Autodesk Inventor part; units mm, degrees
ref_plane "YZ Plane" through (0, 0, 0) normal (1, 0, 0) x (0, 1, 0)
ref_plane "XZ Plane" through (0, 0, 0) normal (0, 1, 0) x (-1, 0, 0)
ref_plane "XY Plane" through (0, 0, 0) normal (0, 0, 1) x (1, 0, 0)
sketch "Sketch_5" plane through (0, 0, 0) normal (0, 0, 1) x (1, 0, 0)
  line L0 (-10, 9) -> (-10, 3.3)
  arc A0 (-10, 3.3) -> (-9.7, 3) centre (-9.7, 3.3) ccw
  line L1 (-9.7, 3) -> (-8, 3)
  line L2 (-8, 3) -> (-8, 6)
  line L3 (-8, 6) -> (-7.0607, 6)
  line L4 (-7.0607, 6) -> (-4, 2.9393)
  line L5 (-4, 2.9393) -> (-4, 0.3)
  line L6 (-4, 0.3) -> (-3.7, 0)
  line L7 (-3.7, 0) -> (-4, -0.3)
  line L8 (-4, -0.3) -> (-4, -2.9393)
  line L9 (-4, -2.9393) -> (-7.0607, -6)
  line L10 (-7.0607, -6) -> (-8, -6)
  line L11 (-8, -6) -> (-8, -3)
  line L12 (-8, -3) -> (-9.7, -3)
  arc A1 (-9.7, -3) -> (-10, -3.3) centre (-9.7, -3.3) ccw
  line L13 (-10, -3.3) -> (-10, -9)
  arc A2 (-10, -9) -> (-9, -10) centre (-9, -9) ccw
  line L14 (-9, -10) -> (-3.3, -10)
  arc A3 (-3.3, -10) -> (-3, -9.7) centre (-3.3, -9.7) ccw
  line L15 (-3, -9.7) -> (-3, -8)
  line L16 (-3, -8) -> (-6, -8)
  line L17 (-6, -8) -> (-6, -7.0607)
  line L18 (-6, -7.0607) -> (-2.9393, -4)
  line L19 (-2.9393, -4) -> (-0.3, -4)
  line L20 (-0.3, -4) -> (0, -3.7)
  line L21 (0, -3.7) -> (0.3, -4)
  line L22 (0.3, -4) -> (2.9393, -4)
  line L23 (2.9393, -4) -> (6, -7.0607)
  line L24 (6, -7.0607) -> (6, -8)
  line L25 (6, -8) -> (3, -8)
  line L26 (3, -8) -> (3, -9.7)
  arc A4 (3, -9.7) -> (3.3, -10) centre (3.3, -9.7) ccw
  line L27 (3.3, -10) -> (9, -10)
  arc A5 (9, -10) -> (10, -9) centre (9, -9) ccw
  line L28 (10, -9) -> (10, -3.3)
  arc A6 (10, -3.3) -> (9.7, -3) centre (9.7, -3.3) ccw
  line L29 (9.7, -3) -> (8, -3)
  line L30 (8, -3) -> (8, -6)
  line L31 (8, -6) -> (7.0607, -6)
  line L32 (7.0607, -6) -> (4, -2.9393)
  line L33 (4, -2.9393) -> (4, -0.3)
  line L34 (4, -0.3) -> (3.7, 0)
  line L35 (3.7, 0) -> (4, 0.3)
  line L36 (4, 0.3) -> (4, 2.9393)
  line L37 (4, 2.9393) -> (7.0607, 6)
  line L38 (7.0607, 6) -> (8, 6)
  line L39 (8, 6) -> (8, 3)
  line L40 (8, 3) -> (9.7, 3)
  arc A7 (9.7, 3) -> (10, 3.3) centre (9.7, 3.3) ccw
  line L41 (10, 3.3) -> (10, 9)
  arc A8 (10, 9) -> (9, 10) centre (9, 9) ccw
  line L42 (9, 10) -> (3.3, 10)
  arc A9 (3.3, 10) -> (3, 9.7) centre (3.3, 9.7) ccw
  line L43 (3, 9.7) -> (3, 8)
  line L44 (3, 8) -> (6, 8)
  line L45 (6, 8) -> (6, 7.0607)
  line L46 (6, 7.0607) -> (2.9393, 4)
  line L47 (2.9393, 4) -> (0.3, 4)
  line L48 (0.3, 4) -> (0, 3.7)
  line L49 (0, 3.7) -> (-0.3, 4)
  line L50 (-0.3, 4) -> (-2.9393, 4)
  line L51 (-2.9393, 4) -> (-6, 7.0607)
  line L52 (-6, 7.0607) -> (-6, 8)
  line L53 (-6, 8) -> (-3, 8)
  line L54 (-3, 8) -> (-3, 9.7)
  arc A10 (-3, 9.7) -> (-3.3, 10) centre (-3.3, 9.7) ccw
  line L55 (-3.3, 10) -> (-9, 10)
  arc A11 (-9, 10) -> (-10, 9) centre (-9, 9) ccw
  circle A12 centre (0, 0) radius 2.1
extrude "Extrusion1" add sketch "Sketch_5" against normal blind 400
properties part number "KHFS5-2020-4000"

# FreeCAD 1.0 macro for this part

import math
import FreeCAD as App
import Part
import Sketcher
Q = App.Units.Quantity

doc = App.newDocument("Part")
body = doc.addObject("PartDesign::Body", "Body")

# Sketch on XY plane
sketch1 = doc.addObject("Sketcher::SketchObject", "Sketch")
body.addObject(sketch1)
sketch1.AttachmentSupport = (doc.XY_Plane, [""])
sketch1.MapMode = "FlatFace"
sketch1.addGeometry(Part.ArcOfCircle(Part.Circle(App.Vector(-9, 9, 0), App.Vector(0, 0, 1), 1), math.radians(90), math.radians(180)), False)
sketch1.addGeometry(Part.LineSegment(App.Vector(-10, 9, 0), App.Vector(-10, 3.3, 0)), False)
sketch1.addGeometry(Part.ArcOfCircle(Part.Circle(App.Vector(-9.7, 3.3, 0), App.Vector(0, 0, 1), 0.3), math.radians(180), math.radians(270)), False)
sketch1.addGeometry(Part.LineSegment(App.Vector(-9.7, 3, 0), App.Vector(-8, 3, 0)), False)
sketch1.addGeometry(Part.LineSegment(App.Vector(-8, 3, 0), App.Vector(-8, 6, 0)), False)
sketch1.addGeometry(Part.LineSegment(App.Vector(-8, 6, 0), App.Vector(-7.0607, 6, 0)), False)
sketch1.addGeometry(Part.LineSegment(App.Vector(-7.0607, 6, 0), App.Vector(-4, 2.9393, 0)), False)
sketch1.addGeometry(Part.LineSegment(App.Vector(-4, 2.9393, 0), App.Vector(-4, 0.3, 0)), False)
sketch1.addGeometry(Part.LineSegment(App.Vector(-4, 0.3, 0), App.Vector(-3.7, 0, 0)), False)
sketch1.addGeometry(Part.LineSegment(App.Vector(-3.7, 0, 0), App.Vector(-4, -0.3, 0)), False)
sketch1.addGeometry(Part.LineSegment(App.Vector(-4, -0.3, 0), App.Vector(-4, -2.9393, 0)), False)
sketch1.addGeometry(Part.LineSegment(App.Vector(-4, -2.9393, 0), App.Vector(-7.0607, -6, 0)), False)
sketch1.addGeometry(Part.LineSegment(App.Vector(-7.0607, -6, 0), App.Vector(-8, -6, 0)), False)
sketch1.addGeometry(Part.LineSegment(App.Vector(-8, -6, 0), App.Vector(-8, -3, 0)), False)
sketch1.addGeometry(Part.LineSegment(App.Vector(-8, -3, 0), App.Vector(-9.7, -3, 0)), False)
sketch1.addGeometry(Part.ArcOfCircle(Part.Circle(App.Vector(-9.7, -3.3, 0), App.Vector(0, 0, 1), 0.3), math.radians(90), math.radians(180)), False)
sketch1.addGeometry(Part.LineSegment(App.Vector(-10, -3.3, 0), App.Vector(-10, -9, 0)), False)
sketch1.addGeometry(Part.ArcOfCircle(Part.Circle(App.Vector(-9, -9, 0), App.Vector(0, 0, 1), 1), math.radians(180), math.radians(270)), False)
sketch1.addGeometry(Part.LineSegment(App.Vector(-9, -10, 0), App.Vector(-3.3, -10, 0)), False)
sketch1.addGeometry(Part.ArcOfCircle(Part.Circle(App.Vector(-3.3, -9.7, 0), App.Vector(0, 0, 1), 0.3), math.radians(-90), math.radians(0)), False)
sketch1.addGeometry(Part.LineSegment(App.Vector(-3, -9.7, 0), App.Vector(-3, -8, 0)), False)
sketch1.addGeometry(Part.LineSegment(App.Vector(-3, -8, 0), App.Vector(-6, -8, 0)), False)
sketch1.addGeometry(Part.LineSegment(App.Vector(-6, -8, 0), App.Vector(-6, -7.0607, 0)), False)
sketch1.addGeometry(Part.LineSegment(App.Vector(-6, -7.0607, 0), App.Vector(-2.9393, -4, 0)), False)
sketch1.addGeometry(Part.LineSegment(App.Vector(-2.9393, -4, 0), App.Vector(-0.3, -4, 0)), False)
sketch1.addGeometry(Part.LineSegment(App.Vector(-0.3, -4, 0), App.Vector(0, -3.7, 0)), False)
sketch1.addGeometry(Part.LineSegment(App.Vector(0, -3.7, 0), App.Vector(0.3, -4, 0)), False)
sketch1.addGeometry(Part.LineSegment(App.Vector(0.3, -4, 0), App.Vector(2.9393, -4, 0)), False)
sketch1.addGeometry(Part.LineSegment(App.Vector(2.9393, -4, 0), App.Vector(6, -7.0607, 0)), False)
sketch1.addGeometry(Part.LineSegment(App.Vector(6, -7.0607, 0), App.Vector(6, -8, 0)), False)
sketch1.addGeometry(Part.LineSegment(App.Vector(6, -8, 0), App.Vector(3, -8, 0)), False)
sketch1.addGeometry(Part.LineSegment(App.Vector(3, -8, 0), App.Vector(3, -9.7, 0)), False)
sketch1.addGeometry(Part.ArcOfCircle(Part.Circle(App.Vector(3.3, -9.7, 0), App.Vector(0, 0, 1), 0.3), math.radians(180), math.radians(270)), False)
sketch1.addGeometry(Part.LineSegment(App.Vector(3.3, -10, 0), App.Vector(9, -10, 0)), False)
sketch1.addGeometry(Part.ArcOfCircle(Part.Circle(App.Vector(9, -9, 0), App.Vector(0, 0, 1), 1), math.radians(-90), math.radians(0)), False)
sketch1.addGeometry(Part.LineSegment(App.Vector(10, -9, 0), App.Vector(10, -3.3, 0)), False)
sketch1.addGeometry(Part.ArcOfCircle(Part.Circle(App.Vector(9.7, -3.3, 0), App.Vector(0, 0, 1), 0.3), math.radians(0), math.radians(90)), False)
sketch1.addGeometry(Part.LineSegment(App.Vector(9.7, -3, 0), App.Vector(8, -3, 0)), False)
sketch1.addGeometry(Part.LineSegment(App.Vector(8, -3, 0), App.Vector(8, -6, 0)), False)
sketch1.addGeometry(Part.LineSegment(App.Vector(8, -6, 0), App.Vector(7.0607, -6, 0)), False)
sketch1.addGeometry(Part.LineSegment(App.Vector(7.0607, -6, 0), App.Vector(4, -2.9393, 0)), False)
sketch1.addGeometry(Part.LineSegment(App.Vector(4, -2.9393, 0), App.Vector(4, -0.3, 0)), False)
sketch1.addGeometry(Part.LineSegment(App.Vector(4, -0.3, 0), App.Vector(3.7, 0, 0)), False)
sketch1.addGeometry(Part.LineSegment(App.Vector(3.7, 0, 0), App.Vector(4, 0.3, 0)), False)
sketch1.addGeometry(Part.LineSegment(App.Vector(4, 0.3, 0), App.Vector(4, 2.9393, 0)), False)
sketch1.addGeometry(Part.LineSegment(App.Vector(4, 2.9393, 0), App.Vector(7.0607, 6, 0)), False)
sketch1.addGeometry(Part.LineSegment(App.Vector(7.0607, 6, 0), App.Vector(8, 6, 0)), False)
sketch1.addGeometry(Part.LineSegment(App.Vector(8, 6, 0), App.Vector(8, 3, 0)), False)
sketch1.addGeometry(Part.LineSegment(App.Vector(8, 3, 0), App.Vector(9.7, 3, 0)), False)
sketch1.addGeometry(Part.ArcOfCircle(Part.Circle(App.Vector(9.7, 3.3, 0), App.Vector(0, 0, 1), 0.3), math.radians(-90), math.radians(0)), False)
sketch1.addGeometry(Part.LineSegment(App.Vector(10, 3.3, 0), App.Vector(10, 9, 0)), False)
sketch1.addGeometry(Part.ArcOfCircle(Part.Circle(App.Vector(9, 9, 0), App.Vector(0, 0, 1), 1), math.radians(0), math.radians(90)), False)
sketch1.addGeometry(Part.LineSegment(App.Vector(9, 10, 0), App.Vector(3.3, 10, 0)), False)
sketch1.addGeometry(Part.ArcOfCircle(Part.Circle(App.Vector(3.3, 9.7, 0), App.Vector(0, 0, 1), 0.3), math.radians(90), math.radians(180)), False)
sketch1.addGeometry(Part.LineSegment(App.Vector(3, 9.7, 0), App.Vector(3, 8, 0)), False)
sketch1.addGeometry(Part.LineSegment(App.Vector(3, 8, 0), App.Vector(6, 8, 0)), False)
sketch1.addGeometry(Part.LineSegment(App.Vector(6, 8, 0), App.Vector(6, 7.0607, 0)), False)
sketch1.addGeometry(Part.LineSegment(App.Vector(6, 7.0607, 0), App.Vector(2.9393, 4, 0)), False)
sketch1.addGeometry(Part.LineSegment(App.Vector(2.9393, 4, 0), App.Vector(0.3, 4, 0)), False)
sketch1.addGeometry(Part.LineSegment(App.Vector(0.3, 4, 0), App.Vector(0, 3.7, 0)), False)
sketch1.addGeometry(Part.LineSegment(App.Vector(0, 3.7, 0), App.Vector(-0.3, 4, 0)), False)
sketch1.addGeometry(Part.LineSegment(App.Vector(-0.3, 4, 0), App.Vector(-2.9393, 4, 0)), False)
sketch1.addGeometry(Part.LineSegment(App.Vector(-2.9393, 4, 0), App.Vector(-6, 7.0607, 0)), False)
sketch1.addGeometry(Part.LineSegment(App.Vector(-6, 7.0607, 0), App.Vector(-6, 8, 0)), False)
sketch1.addGeometry(Part.LineSegment(App.Vector(-6, 8, 0), App.Vector(-3, 8, 0)), False)
sketch1.addGeometry(Part.LineSegment(App.Vector(-3, 8, 0), App.Vector(-3, 9.7, 0)), False)
sketch1.addGeometry(Part.ArcOfCircle(Part.Circle(App.Vector(-3.3, 9.7, 0), App.Vector(0, 0, 1), 0.3), math.radians(0), math.radians(90)), False)
sketch1.addGeometry(Part.LineSegment(App.Vector(-3.3, 10, 0), App.Vector(-9, 10, 0)), False)
sketch1.addGeometry(Part.Circle(App.Vector(0, 0, 0), App.Vector(0, 0, 1), 2.1), False)
sketch1.addConstraint(Sketcher.Constraint("Tangent", 0, 2, 1, 1))
sketch1.addConstraint(Sketcher.Constraint("Tangent", 1, 2, 2, 1))
sketch1.addConstraint(Sketcher.Constraint("Tangent", 2, 2, 3, 1))
sketch1.addConstraint(Sketcher.Constraint("Coincident", 3, 2, 4, 1))
sketch1.addConstraint(Sketcher.Constraint("Coincident", 4, 2, 5, 1))
sketch1.addConstraint(Sketcher.Constraint("Coincident", 5, 2, 6, 1))
sketch1.addConstraint(Sketcher.Constraint("Coincident", 6, 2, 7, 1))
sketch1.addConstraint(Sketcher.Constraint("Coincident", 7, 2, 8, 1))
sketch1.addConstraint(Sketcher.Constraint("Coincident", 8, 2, 9, 1))
sketch1.addConstraint(Sketcher.Constraint("Coincident", 9, 2, 10, 1))
sketch1.addConstraint(Sketcher.Constraint("Coincident", 10, 2, 11, 1))
sketch1.addConstraint(Sketcher.Constraint("Coincident", 11, 2, 12, 1))
sketch1.addConstraint(Sketcher.Constraint("Coincident", 12, 2, 13, 1))
sketch1.addConstraint(Sketcher.Constraint("Coincident", 13, 2, 14, 1))
sketch1.addConstraint(Sketcher.Constraint("Tangent", 14, 2, 15, 1))
sketch1.addConstraint(Sketcher.Constraint("Tangent", 15, 2, 16, 1))
sketch1.addConstraint(Sketcher.Constraint("Tangent", 16, 2, 17, 1))
sketch1.addConstraint(Sketcher.Constraint("Tangent", 17, 2, 18, 1))
sketch1.addConstraint(Sketcher.Constraint("Tangent", 18, 2, 19, 1))
sketch1.addConstraint(Sketcher.Constraint("Tangent", 19, 2, 20, 1))
sketch1.addConstraint(Sketcher.Constraint("Coincident", 20, 2, 21, 1))
sketch1.addConstraint(Sketcher.Constraint("Coincident", 21, 2, 22, 1))
sketch1.addConstraint(Sketcher.Constraint("Coincident", 22, 2, 23, 1))
sketch1.addConstraint(Sketcher.Constraint("Coincident", 23, 2, 24, 1))
sketch1.addConstraint(Sketcher.Constraint("Coincident", 24, 2, 25, 1))
sketch1.addConstraint(Sketcher.Constraint("Coincident", 25, 2, 26, 1))
sketch1.addConstraint(Sketcher.Constraint("Coincident", 26, 2, 27, 1))
sketch1.addConstraint(Sketcher.Constraint("Coincident", 27, 2, 28, 1))
sketch1.addConstraint(Sketcher.Constraint("Coincident", 28, 2, 29, 1))
sketch1.addConstraint(Sketcher.Constraint("Coincident", 29, 2, 30, 1))
sketch1.addConstraint(Sketcher.Constraint("Coincident", 30, 2, 31, 1))
sketch1.addConstraint(Sketcher.Constraint("Tangent", 31, 2, 32, 1))
sketch1.addConstraint(Sketcher.Constraint("Tangent", 32, 2, 33, 1))
sketch1.addConstraint(Sketcher.Constraint("Tangent", 33, 2, 34, 1))
sketch1.addConstraint(Sketcher.Constraint("Tangent", 34, 2, 35, 1))
sketch1.addConstraint(Sketcher.Constraint("Tangent", 35, 2, 36, 1))
sketch1.addConstraint(Sketcher.Constraint("Tangent", 36, 2, 37, 1))
sketch1.addConstraint(Sketcher.Constraint("Coincident", 37, 2, 38, 1))
sketch1.addConstraint(Sketcher.Constraint("Coincident", 38, 2, 39, 1))
sketch1.addConstraint(Sketcher.Constraint("Coincident", 39, 2, 40, 1))
sketch1.addConstraint(Sketcher.Constraint("Coincident", 40, 2, 41, 1))
sketch1.addConstraint(Sketcher.Constraint("Coincident", 41, 2, 42, 1))
sketch1.addConstraint(Sketcher.Constraint("Coincident", 42, 2, 43, 1))
sketch1.addConstraint(Sketcher.Constraint("Coincident", 43, 2, 44, 1))
sketch1.addConstraint(Sketcher.Constraint("Coincident", 44, 2, 45, 1))
sketch1.addConstraint(Sketcher.Constraint("Coincident", 45, 2, 46, 1))
sketch1.addConstraint(Sketcher.Constraint("Coincident", 46, 2, 47, 1))
sketch1.addConstraint(Sketcher.Constraint("Coincident", 47, 2, 48, 1))
sketch1.addConstraint(Sketcher.Constraint("Tangent", 48, 2, 49, 1))
sketch1.addConstraint(Sketcher.Constraint("Tangent", 49, 2, 50, 1))
sketch1.addConstraint(Sketcher.Constraint("Tangent", 50, 2, 51, 1))
sketch1.addConstraint(Sketcher.Constraint("Tangent", 51, 2, 52, 1))
sketch1.addConstraint(Sketcher.Constraint("Tangent", 52, 2, 53, 1))
sketch1.addConstraint(Sketcher.Constraint("Tangent", 53, 2, 54, 1))
sketch1.addConstraint(Sketcher.Constraint("Coincident", 54, 2, 55, 1))
sketch1.addConstraint(Sketcher.Constraint("Coincident", 55, 2, 56, 1))
sketch1.addConstraint(Sketcher.Constraint("Coincident", 56, 2, 57, 1))
sketch1.addConstraint(Sketcher.Constraint("Coincident", 57, 2, 58, 1))
sketch1.addConstraint(Sketcher.Constraint("Coincident", 58, 2, 59, 1))
sketch1.addConstraint(Sketcher.Constraint("Coincident", 59, 2, 60, 1))
sketch1.addConstraint(Sketcher.Constraint("Coincident", 60, 2, 61, 1))
sketch1.addConstraint(Sketcher.Constraint("Coincident", 61, 2, 62, 1))
sketch1.addConstraint(Sketcher.Constraint("Coincident", 62, 2, 63, 1))
sketch1.addConstraint(Sketcher.Constraint("Coincident", 63, 2, 64, 1))
sketch1.addConstraint(Sketcher.Constraint("Coincident", 64, 2, 65, 1))
sketch1.addConstraint(Sketcher.Constraint("Tangent", 65, 2, 66, 1))
sketch1.addConstraint(Sketcher.Constraint("Tangent", 66, 2, 67, 1))
sketch1.addConstraint(Sketcher.Constraint("Tangent", 67, 2, 0, 1))
sketch1.addConstraint(Sketcher.Constraint("Vertical", 1))
sketch1.addConstraint(Sketcher.Constraint("Horizontal", 3))
sketch1.addConstraint(Sketcher.Constraint("Vertical", 4))
sketch1.addConstraint(Sketcher.Constraint("Horizontal", 5))
sketch1.addConstraint(Sketcher.Constraint("Vertical", 7))
sketch1.addConstraint(Sketcher.Constraint("Vertical", 10))
sketch1.addConstraint(Sketcher.Constraint("Horizontal", 12))
sketch1.addConstraint(Sketcher.Constraint("Vertical", 13))
sketch1.addConstraint(Sketcher.Constraint("Horizontal", 14))
sketch1.addConstraint(Sketcher.Constraint("Vertical", 16))
sketch1.addConstraint(Sketcher.Constraint("Horizontal", 18))
sketch1.addConstraint(Sketcher.Constraint("Vertical", 20))
sketch1.addConstraint(Sketcher.Constraint("Horizontal", 21))
sketch1.addConstraint(Sketcher.Constraint("Vertical", 22))
sketch1.addConstraint(Sketcher.Constraint("Horizontal", 24))
sketch1.addConstraint(Sketcher.Constraint("Horizontal", 27))
sketch1.addConstraint(Sketcher.Constraint("Vertical", 29))
sketch1.addConstraint(Sketcher.Constraint("Horizontal", 30))
sketch1.addConstraint(Sketcher.Constraint("Vertical", 31))
sketch1.addConstraint(Sketcher.Constraint("Horizontal", 33))
sketch1.addConstraint(Sketcher.Constraint("Vertical", 35))
sketch1.addConstraint(Sketcher.Constraint("Horizontal", 37))
sketch1.addConstraint(Sketcher.Constraint("Vertical", 38))
sketch1.addConstraint(Sketcher.Constraint("Horizontal", 39))
sketch1.addConstraint(Sketcher.Constraint("Vertical", 41))
sketch1.addConstraint(Sketcher.Constraint("Vertical", 44))
sketch1.addConstraint(Sketcher.Constraint("Horizontal", 46))
sketch1.addConstraint(Sketcher.Constraint("Vertical", 47))
sketch1.addConstraint(Sketcher.Constraint("Horizontal", 48))
sketch1.addConstraint(Sketcher.Constraint("Vertical", 50))
sketch1.addConstraint(Sketcher.Constraint("Horizontal", 52))
sketch1.addConstraint(Sketcher.Constraint("Vertical", 54))
sketch1.addConstraint(Sketcher.Constraint("Horizontal", 55))
sketch1.addConstraint(Sketcher.Constraint("Vertical", 56))
sketch1.addConstraint(Sketcher.Constraint("Horizontal", 58))
sketch1.addConstraint(Sketcher.Constraint("Horizontal", 61))
sketch1.addConstraint(Sketcher.Constraint("Vertical", 63))
sketch1.addConstraint(Sketcher.Constraint("Horizontal", 64))
sketch1.addConstraint(Sketcher.Constraint("Vertical", 65))
sketch1.addConstraint(Sketcher.Constraint("Horizontal", 67))
sketch1.addConstraint(Sketcher.Constraint("Coincident", 68, 3, -1, 1))
sketch1.addConstraint(Sketcher.Constraint("Equal", 2, 15))
sketch1.addConstraint(Sketcher.Constraint("Equal", 0, 17))
sketch1.addConstraint(Sketcher.Constraint("Equal", 15, 19))
sketch1.addConstraint(Sketcher.Constraint("Equal", 19, 32))
sketch1.addConstraint(Sketcher.Constraint("Equal", 17, 34))
sketch1.addConstraint(Sketcher.Constraint("Equal", 32, 36))
sketch1.addConstraint(Sketcher.Constraint("Equal", 36, 49))
sketch1.addConstraint(Sketcher.Constraint("Equal", 34, 51))
sketch1.addConstraint(Sketcher.Constraint("Equal", 49, 53))
sketch1.addConstraint(Sketcher.Constraint("Equal", 53, 66))
sketch1.addConstraint(Sketcher.Constraint("Symmetric", 0, 3, 34, 3, -1, 1))
sketch1.addConstraint(Sketcher.Constraint("Symmetric", 15, 3, 49, 3, -1, 1))
sketch1.addConstraint(Sketcher.Constraint("Symmetric", 19, 3, 53, 3, -1, 1))
sketch1.addConstraint(Sketcher.Constraint("Symmetric", 3, 2, 37, 2, -1, 1))
sketch1.addConstraint(Sketcher.Constraint("Symmetric", 5, 2, 39, 2, -1, 1))
sketch1.addConstraint(Sketcher.Constraint("Symmetric", 6, 2, 40, 2, -1, 1))
sketch1.addConstraint(Sketcher.Constraint("Symmetric", 8, 2, 42, 2, -1, 1))
sketch1.addConstraint(Sketcher.Constraint("Symmetric", 9, 2, 43, 2, -1, 1))
sketch1.addConstraint(Sketcher.Constraint("Symmetric", 11, 2, 45, 2, -1, 1))
sketch1.addConstraint(Sketcher.Constraint("Symmetric", 21, 2, 55, 2, -1, 1))
sketch1.addConstraint(Sketcher.Constraint("Symmetric", 23, 2, 57, 2, -1, 1))
sketch1.addConstraint(Sketcher.Constraint("Symmetric", 25, 2, 59, 2, -1, 1))
sketch1.addConstraint(Sketcher.Constraint("Symmetric", 26, 2, 60, 2, -1, 1))
sketch1.addConstraint(Sketcher.Constraint("Symmetric", 28, 2, 62, 2, -1, 1))
sketch1.addConstraint(Sketcher.Constraint("Symmetric", 30, 2, 64, 2, -1, 1))
sketch1.addConstraint(Sketcher.Constraint("Symmetric", 19, 3, 32, 3, -2))
sketch1.addConstraint(Sketcher.Constraint("Symmetric", 15, 3, 36, 3, -2))
sketch1.addConstraint(Sketcher.Constraint("Symmetric", 24, 2, 26, 2, -2))
sketch1.addConstraint(Sketcher.Constraint("Symmetric", 22, 2, 28, 2, -2))
sketch1.addConstraint(Sketcher.Constraint("Symmetric", 12, 2, 38, 2, -2))
sketch1.addConstraint(Sketcher.Constraint("Symmetric", 10, 2, 40, 2, -2))
sketch1.addConstraint(Sketcher.Constraint("PointOnObject", 8, 2, -1))
sketch1.addConstraint(Sketcher.Constraint("PointOnObject", 25, 2, -2))
sketch1.addConstraint(Sketcher.Constraint("Parallel", 6, 8))
sketch1.addConstraint(Sketcher.Constraint("Perpendicular", 8, 9))
sketch1.addConstraint(Sketcher.Constraint("Parallel", 9, 11))
sketch1.addConstraint(Sketcher.Constraint("Parallel", 11, 23))
sketch1.addConstraint(Sketcher.Constraint("Parallel", 23, 25))
sketch1.addConstraint(Sketcher.Constraint("Perpendicular", 25, 26))
sketch1.addConstraint(Sketcher.Constraint("Parallel", 26, 28))
sketch1.addConstraint(Sketcher.Constraint("Parallel", 40, 42))
sketch1.addConstraint(Sketcher.Constraint("Parallel", 43, 45))
sketch1.addConstraint(Sketcher.Constraint("Parallel", 45, 57))
sketch1.addConstraint(Sketcher.Constraint("Parallel", 57, 59))
sketch1.addConstraint(Sketcher.Constraint("Parallel", 60, 62))
sketch1.addConstraint(Sketcher.Constraint("Horizontal", 21, 2, 29, 2))
sketch1.addConstraint(Sketcher.Constraint("Vertical", 38, 2, 46, 2))
sketch1.addConstraint(Sketcher.Constraint("Equal", 67, 1))
sketch1.addConstraint(Sketcher.Constraint("Equal", 64, 4))
sketch1.addConstraint(Sketcher.Constraint("Equal", 61, 7))
sketch1.addConstraint(Sketcher.Constraint("Equal", 48, 20))
sketch1.addConstraint(Sketcher.Constraint("Equal", 46, 22))
sketch1.addConstraint(Sketcher.Constraint("Equal", 11, 23))
sketch1.addConstraint(Sketcher.Constraint("Equal", 9, 25))
sketch1.addConstraint(Sketcher.Constraint("Radius", 0, Q("1 mm")))
sketch1.addConstraint(Sketcher.Constraint("Diameter", 68, Q("4.2 mm")))
sketch1.addConstraint(Sketcher.Constraint("Radius", 2, Q("0.3 mm")))
sketch1.addConstraint(Sketcher.Constraint("DistanceX", 21, 2, 21, 1, Q("3 mm")))
sketch1.addConstraint(Sketcher.Constraint("DistanceX", 3, 1, 3, 2, Q("1.7 mm")))
sketch1.addConstraint(Sketcher.Constraint("DistanceX", 18, 1, 18, 2, Q("5.7 mm")))
sketch1.addConstraint(Sketcher.Constraint("DistanceX", 0, 3, -1, 1, Q("9 mm")))
sketch1.addConstraint(Sketcher.Constraint("DistanceX", 6, 2, -1, 1, Q("4 mm")))
sketch1.addConstraint(Sketcher.Constraint("DistanceY", -1, 1, 7, 2, Q("0.3 mm")))
sketch1.addConstraint(Sketcher.Constraint("DistanceX", 5, 1, 5, 2, Q("0.9393 mm")))
pad1 = doc.addObject("PartDesign::Pad", "Pad")
body.addObject(pad1)
pad1.Profile = sketch1
pad1.Length = 400
pad1.Reversed = True

doc.recompute()
